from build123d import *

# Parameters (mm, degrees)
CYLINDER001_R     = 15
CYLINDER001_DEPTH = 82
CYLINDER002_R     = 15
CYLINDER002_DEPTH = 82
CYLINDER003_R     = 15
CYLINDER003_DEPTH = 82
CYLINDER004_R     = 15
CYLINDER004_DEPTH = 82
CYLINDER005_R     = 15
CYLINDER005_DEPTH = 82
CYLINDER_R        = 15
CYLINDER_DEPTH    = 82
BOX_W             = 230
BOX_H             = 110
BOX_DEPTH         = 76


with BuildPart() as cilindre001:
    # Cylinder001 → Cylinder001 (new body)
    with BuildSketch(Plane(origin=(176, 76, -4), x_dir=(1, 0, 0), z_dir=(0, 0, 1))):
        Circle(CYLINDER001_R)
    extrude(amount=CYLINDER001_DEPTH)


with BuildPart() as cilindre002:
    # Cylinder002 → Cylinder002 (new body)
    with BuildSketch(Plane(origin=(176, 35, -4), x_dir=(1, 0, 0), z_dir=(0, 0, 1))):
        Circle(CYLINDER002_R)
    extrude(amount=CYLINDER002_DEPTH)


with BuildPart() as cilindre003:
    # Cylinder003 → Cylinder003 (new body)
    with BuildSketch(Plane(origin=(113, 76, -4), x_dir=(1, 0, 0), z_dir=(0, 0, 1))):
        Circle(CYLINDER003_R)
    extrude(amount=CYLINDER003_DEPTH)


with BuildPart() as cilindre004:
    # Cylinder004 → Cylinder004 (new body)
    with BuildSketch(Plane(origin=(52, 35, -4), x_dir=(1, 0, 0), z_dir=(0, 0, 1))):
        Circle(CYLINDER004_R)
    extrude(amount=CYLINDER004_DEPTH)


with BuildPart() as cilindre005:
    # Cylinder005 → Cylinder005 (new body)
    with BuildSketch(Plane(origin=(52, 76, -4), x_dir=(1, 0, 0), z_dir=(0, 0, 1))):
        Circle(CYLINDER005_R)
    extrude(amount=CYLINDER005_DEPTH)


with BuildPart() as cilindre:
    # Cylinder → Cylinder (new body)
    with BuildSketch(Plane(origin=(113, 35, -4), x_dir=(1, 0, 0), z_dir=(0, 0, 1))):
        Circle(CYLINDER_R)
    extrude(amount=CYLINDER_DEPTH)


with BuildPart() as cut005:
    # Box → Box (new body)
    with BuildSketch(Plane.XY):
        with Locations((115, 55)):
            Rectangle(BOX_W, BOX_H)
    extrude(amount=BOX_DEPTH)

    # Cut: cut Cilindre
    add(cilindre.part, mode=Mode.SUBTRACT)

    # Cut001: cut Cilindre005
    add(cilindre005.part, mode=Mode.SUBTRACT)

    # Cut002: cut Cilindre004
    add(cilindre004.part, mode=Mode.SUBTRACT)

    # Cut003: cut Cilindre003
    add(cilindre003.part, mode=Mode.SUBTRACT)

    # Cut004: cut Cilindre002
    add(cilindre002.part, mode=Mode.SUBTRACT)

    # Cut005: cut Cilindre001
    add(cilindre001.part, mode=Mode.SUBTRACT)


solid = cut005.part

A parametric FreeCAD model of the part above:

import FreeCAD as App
import Part
import Sketcher
from FreeCAD import Vector

doc = App.newDocument("Part")
body = doc.addObject("PartDesign::Body", "Body")

# Sketch on XY plane
sketch1 = body.newObject("Sketcher::SketchObject", "Sketch")
sketch1.AttachmentSupport = (doc.getObject("XY_Plane"), [""])
sketch1.MapMode = "FlatFace"
sketch1.AttachmentOffset = App.Placement(Vector(0, 0, -4), App.Rotation())
sketch1.addGeometry(Part.Circle(Vector(176, 76, 0), Vector(0, 0, 1), 15), False)
sketch1.addConstraint([
    Sketcher.Constraint("Diameter", 0, 30.0),
    Sketcher.Constraint("DistanceX", -1, 1, 0, 3, 176.0),
    Sketcher.Constraint("DistanceY", -1, 1, 0, 3, 76.0),
])
pad1 = body.newObject("PartDesign::Pad", "Pad")
pad1.Profile = sketch1
pad1.Length = 82
body2 = doc.addObject("PartDesign::Body", "Body001")

# Sketch on XY plane
sketch2 = body2.newObject("Sketcher::SketchObject", "Sketch001")
sketch2.AttachmentSupport = (doc.getObject("XY_Plane001"), [""])
sketch2.MapMode = "FlatFace"
sketch2.AttachmentOffset = App.Placement(Vector(0, 0, -4), App.Rotation())
sketch2.addGeometry(Part.Circle(Vector(176, 35, 0), Vector(0, 0, 1), 15), False)
sketch2.addConstraint([
    Sketcher.Constraint("Diameter", 0, 30.0),
    Sketcher.Constraint("DistanceX", -1, 1, 0, 3, 176.0),
    Sketcher.Constraint("DistanceY", -1, 1, 0, 3, 35.0),
])
pad2 = body2.newObject("PartDesign::Pad", "Pad001")
pad2.Profile = sketch2
pad2.Length = 82
body3 = doc.addObject("PartDesign::Body", "Body002")

# Sketch on XY plane
sketch3 = body3.newObject("Sketcher::SketchObject", "Sketch002")
sketch3.AttachmentSupport = (doc.getObject("XY_Plane002"), [""])
sketch3.MapMode = "FlatFace"
sketch3.AttachmentOffset = App.Placement(Vector(0, 0, -4), App.Rotation())
sketch3.addGeometry(Part.Circle(Vector(113, 76, 0), Vector(0, 0, 1), 15), False)
sketch3.addConstraint([
    Sketcher.Constraint("Diameter", 0, 30.0),
    Sketcher.Constraint("DistanceX", -1, 1, 0, 3, 113.0),
    Sketcher.Constraint("DistanceY", -1, 1, 0, 3, 76.0),
])
pad3 = body3.newObject("PartDesign::Pad", "Pad002")
pad3.Profile = sketch3
pad3.Length = 82
body4 = doc.addObject("PartDesign::Body", "Body003")

# Sketch on XY plane
sketch4 = body4.newObject("Sketcher::SketchObject", "Sketch003")
sketch4.AttachmentSupport = (doc.getObject("XY_Plane003"), [""])
sketch4.MapMode = "FlatFace"
sketch4.AttachmentOffset = App.Placement(Vector(0, 0, -4), App.Rotation())
sketch4.addGeometry(Part.Circle(Vector(52, 35, 0), Vector(0, 0, 1), 15), False)
sketch4.addConstraint([
    Sketcher.Constraint("Diameter", 0, 30.0),
    Sketcher.Constraint("DistanceX", -1, 1, 0, 3, 52.0),
    Sketcher.Constraint("DistanceY", -1, 1, 0, 3, 35.0),
])
pad4 = body4.newObject("PartDesign::Pad", "Pad003")
pad4.Profile = sketch4
pad4.Length = 82
body5 = doc.addObject("PartDesign::Body", "Body004")

# Sketch on XY plane
sketch5 = body5.newObject("Sketcher::SketchObject", "Sketch004")
sketch5.AttachmentSupport = (doc.getObject("XY_Plane004"), [""])
sketch5.MapMode = "FlatFace"
sketch5.AttachmentOffset = App.Placement(Vector(0, 0, -4), App.Rotation())
sketch5.addGeometry(Part.Circle(Vector(52, 76, 0), Vector(0, 0, 1), 15), False)
sketch5.addConstraint([
    Sketcher.Constraint("Diameter", 0, 30.0),
    Sketcher.Constraint("DistanceX", -1, 1, 0, 3, 52.0),
    Sketcher.Constraint("DistanceY", -1, 1, 0, 3, 76.0),
])
pad5 = body5.newObject("PartDesign::Pad", "Pad004")
pad5.Profile = sketch5
pad5.Length = 82
body6 = doc.addObject("PartDesign::Body", "Body005")

# Sketch on XY plane
sketch6 = body6.newObject("Sketcher::SketchObject", "Sketch005")
sketch6.AttachmentSupport = (doc.getObject("XY_Plane005"), [""])
sketch6.MapMode = "FlatFace"
sketch6.AttachmentOffset = App.Placement(Vector(0, 0, -4), App.Rotation())
sketch6.addGeometry(Part.Circle(Vector(113, 35, 0), Vector(0, 0, 1), 15), False)
sketch6.addConstraint([
    Sketcher.Constraint("Diameter", 0, 30.0),
    Sketcher.Constraint("DistanceX", -1, 1, 0, 3, 113.0),
    Sketcher.Constraint("DistanceY", -1, 1, 0, 3, 35.0),
])
pad6 = body6.newObject("PartDesign::Pad", "Pad005")
pad6.Profile = sketch6
pad6.Length = 82
body7 = doc.addObject("PartDesign::Body", "Body006")

# Sketch on XY plane
sketch7 = body7.newObject("Sketcher::SketchObject", "Sketch006")
sketch7.AttachmentSupport = (doc.getObject("XY_Plane006"), [""])
sketch7.MapMode = "FlatFace"
sketch7.addGeometry([
    Part.LineSegment(Vector(0, 110, 0), Vector(0, 0, 0)),
    Part.LineSegment(Vector(0, 0, 0), Vector(230, 0, 0)),
    Part.LineSegment(Vector(230, 0, 0), Vector(230, 110, 0)),
    Part.LineSegment(Vector(230, 110, 0), Vector(0, 110, 0)),
], False)
sketch7.addConstraint([
    Sketcher.Constraint("Coincident", 0, 2, 1, 1),
    Sketcher.Constraint("Coincident", 1, 2, 2, 1),
    Sketcher.Constraint("Coincident", 2, 2, 3, 1),
    Sketcher.Constraint("Coincident", 3, 2, 0, 1),
    Sketcher.Constraint("Vertical", 0),
    Sketcher.Constraint("Horizontal", 1),
    Sketcher.Constraint("Vertical", 2),
    Sketcher.Constraint("Horizontal", 3),
    Sketcher.Constraint("Coincident", 0, 2, -1, 1),
    Sketcher.Constraint("DistanceX", 1, 1, 1, 2, 230.0),
    Sketcher.Constraint("DistanceY", 0, 2, 0, 1, 110.0),
])
pad7 = body7.newObject("PartDesign::Pad", "Pad006")
pad7.Profile = sketch7
pad7.Length = 76
doc.recompute()

boolean = body7.newObject("PartDesign::Boolean", "Boolean")
boolean.Type = "Cut"
boolean.addObjects([body6])
doc.recompute()

boolean2 = body7.newObject("PartDesign::Boolean", "Boolean001")
boolean2.Type = "Cut"
boolean2.addObjects([body5])
doc.recompute()

boolean3 = body7.newObject("PartDesign::Boolean", "Boolean002")
boolean3.Type = "Cut"
boolean3.addObjects([body4])
doc.recompute()

boolean4 = body7.newObject("PartDesign::Boolean", "Boolean003")
boolean4.Type = "Cut"
boolean4.addObjects([body3])
doc.recompute()

boolean5 = body7.newObject("PartDesign::Boolean", "Boolean004")
boolean5.Type = "Cut"
boolean5.addObjects([body2])
doc.recompute()

boolean6 = body7.newObject("PartDesign::Boolean", "Boolean005")
boolean6.Type = "Cut"
boolean6.addObjects([body])

doc.recompute()
